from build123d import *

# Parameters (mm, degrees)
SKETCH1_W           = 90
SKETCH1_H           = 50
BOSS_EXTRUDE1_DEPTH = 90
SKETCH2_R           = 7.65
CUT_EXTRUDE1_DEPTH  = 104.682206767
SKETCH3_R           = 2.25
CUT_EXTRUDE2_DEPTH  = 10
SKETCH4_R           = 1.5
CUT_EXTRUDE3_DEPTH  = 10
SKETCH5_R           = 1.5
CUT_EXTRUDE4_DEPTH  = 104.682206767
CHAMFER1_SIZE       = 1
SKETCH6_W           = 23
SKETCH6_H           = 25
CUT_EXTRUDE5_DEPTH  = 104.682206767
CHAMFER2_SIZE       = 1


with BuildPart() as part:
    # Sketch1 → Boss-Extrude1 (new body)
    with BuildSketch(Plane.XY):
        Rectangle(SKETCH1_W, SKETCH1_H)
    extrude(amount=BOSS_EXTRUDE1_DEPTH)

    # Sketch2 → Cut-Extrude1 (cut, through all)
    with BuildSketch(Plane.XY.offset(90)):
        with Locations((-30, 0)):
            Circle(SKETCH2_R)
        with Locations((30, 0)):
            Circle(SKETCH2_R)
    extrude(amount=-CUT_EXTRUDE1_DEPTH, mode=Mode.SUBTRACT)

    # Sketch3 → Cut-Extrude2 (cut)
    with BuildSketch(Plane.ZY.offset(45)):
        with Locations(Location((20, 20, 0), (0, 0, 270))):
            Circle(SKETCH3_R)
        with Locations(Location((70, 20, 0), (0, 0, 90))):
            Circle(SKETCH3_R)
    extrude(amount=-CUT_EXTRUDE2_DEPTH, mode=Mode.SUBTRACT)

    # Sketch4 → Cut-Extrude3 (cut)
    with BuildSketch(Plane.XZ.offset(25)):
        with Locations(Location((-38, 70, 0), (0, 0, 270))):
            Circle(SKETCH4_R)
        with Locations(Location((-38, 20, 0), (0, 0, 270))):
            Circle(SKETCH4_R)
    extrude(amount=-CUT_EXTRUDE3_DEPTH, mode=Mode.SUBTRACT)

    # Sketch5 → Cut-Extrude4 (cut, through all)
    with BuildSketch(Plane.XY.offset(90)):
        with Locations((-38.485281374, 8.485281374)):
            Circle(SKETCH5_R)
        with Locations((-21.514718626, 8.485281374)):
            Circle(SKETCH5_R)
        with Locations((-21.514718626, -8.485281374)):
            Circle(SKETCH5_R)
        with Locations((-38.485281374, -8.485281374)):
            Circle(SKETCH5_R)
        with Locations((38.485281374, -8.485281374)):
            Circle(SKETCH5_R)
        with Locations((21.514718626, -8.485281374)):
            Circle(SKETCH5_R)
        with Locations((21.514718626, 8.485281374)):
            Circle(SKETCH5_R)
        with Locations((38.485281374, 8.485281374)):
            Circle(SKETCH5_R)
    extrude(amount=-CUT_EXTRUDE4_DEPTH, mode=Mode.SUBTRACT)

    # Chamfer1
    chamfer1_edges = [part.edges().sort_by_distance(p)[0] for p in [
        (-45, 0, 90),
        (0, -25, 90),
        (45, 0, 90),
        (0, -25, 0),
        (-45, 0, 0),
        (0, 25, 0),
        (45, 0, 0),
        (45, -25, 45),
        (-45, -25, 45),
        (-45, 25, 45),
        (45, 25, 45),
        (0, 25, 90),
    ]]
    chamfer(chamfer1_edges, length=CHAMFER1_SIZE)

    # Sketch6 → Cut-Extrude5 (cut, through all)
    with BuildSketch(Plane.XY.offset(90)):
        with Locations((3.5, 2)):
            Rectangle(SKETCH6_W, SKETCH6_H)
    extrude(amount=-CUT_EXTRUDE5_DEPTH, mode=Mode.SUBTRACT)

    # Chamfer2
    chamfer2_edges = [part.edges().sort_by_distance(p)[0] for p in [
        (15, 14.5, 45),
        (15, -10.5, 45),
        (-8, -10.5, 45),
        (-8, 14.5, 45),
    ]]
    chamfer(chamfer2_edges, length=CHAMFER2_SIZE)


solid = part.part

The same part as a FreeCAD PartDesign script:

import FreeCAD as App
import Part
import Sketcher
from FreeCAD import Vector
Q = App.Units.Quantity


def edges_at(feature, points):
    """Names of the edges that pass closest to the given points."""
    edges = feature.Shape.Edges
    near = lambda p: min(range(len(edges)), key=lambda i: edges[i].distToShape(Part.Vertex(*p))[0])
    return sorted({f"Edge{near(p) + 1}" for p in points})

doc = App.newDocument("Part")
body = doc.addObject("PartDesign::Body", "Body")

# Sketch on XY plane
sketch1 = body.newObject("Sketcher::SketchObject", "Sketch")
sketch1.AttachmentSupport = (doc.getObject("XY_Plane"), [""])
sketch1.MapMode = "FlatFace"
sketch1.addGeometry(Part.LineSegment(Vector(-45, 25, 0), Vector(-45, -25, 0)), False)
sketch1.addGeometry(Part.LineSegment(Vector(-45, -25, 0), Vector(45, -25, 0)), False)
sketch1.addGeometry(Part.LineSegment(Vector(45, -25, 0), Vector(45, 25, 0)), False)
sketch1.addGeometry(Part.LineSegment(Vector(45, 25, 0), Vector(-45, 25, 0)), False)
sketch1.addConstraint(Sketcher.Constraint("Coincident", 0, 2, 1, 1))
sketch1.addConstraint(Sketcher.Constraint("Coincident", 1, 2, 2, 1))
sketch1.addConstraint(Sketcher.Constraint("Coincident", 2, 2, 3, 1))
sketch1.addConstraint(Sketcher.Constraint("Coincident", 3, 2, 0, 1))
sketch1.addConstraint(Sketcher.Constraint("Vertical", 0))
sketch1.addConstraint(Sketcher.Constraint("Horizontal", 1))
sketch1.addConstraint(Sketcher.Constraint("Vertical", 2))
sketch1.addConstraint(Sketcher.Constraint("Horizontal", 3))
sketch1.addConstraint(Sketcher.Constraint("Symmetric", 0, 2, 2, 2, -1, 1))
sketch1.addConstraint(Sketcher.Constraint("DistanceX", 1, 1, 1, 2, Q("90 mm")))
sketch1.addConstraint(Sketcher.Constraint("DistanceY", 0, 2, 0, 1, Q("50 mm")))
pad1 = body.newObject("PartDesign::Pad", "Pad")
pad1.Profile = sketch1
pad1.Length = 90

# Sketch on XY plane
sketch2 = body.newObject("Sketcher::SketchObject", "Sketch001")
sketch2.AttachmentSupport = (doc.getObject("XY_Plane"), [""])
sketch2.MapMode = "FlatFace"
sketch2.AttachmentOffset = App.Placement(Vector(0, 0, 90), App.Rotation())
sketch2.addGeometry(Part.Circle(Vector(-30, 0, 0), Vector(0, 0, 1), 7.65), False)
sketch2.addGeometry(Part.Circle(Vector(30, 0, 0), Vector(0, 0, 1), 7.65), False)
sketch2.addConstraint(Sketcher.Constraint("Equal", 0, 1))
sketch2.addConstraint(Sketcher.Constraint("Symmetric", 0, 3, 1, 3, -1, 1))
sketch2.addConstraint(Sketcher.Constraint("PointOnObject", 0, 3, -1))
sketch2.addConstraint(Sketcher.Constraint("Diameter", 0, Q("15.3 mm")))
sketch2.addConstraint(Sketcher.Constraint("DistanceX", 0, 3, -1, 1, Q("30 mm")))
pocket1 = body.newObject("PartDesign::Pocket", "Pocket")
pocket1.Profile = sketch2
pocket1.Type = "ThroughAll"

# Sketch on YZ plane
sketch3 = body.newObject("Sketcher::SketchObject", "Sketch002")
sketch3.AttachmentSupport = (doc.getObject("YZ_Plane"), [""])
sketch3.MapMode = "FlatFace"
sketch3.AttachmentOffset = App.Placement(Vector(0, 0, -45), App.Rotation())
sketch3.addGeometry(Part.Circle(Vector(20, 20, 0), Vector(0, 0, 1), 2.25), False)
sketch3.addGeometry(Part.Circle(Vector(20, 70, 0), Vector(0, 0, 1), 2.25), False)
sketch3.addConstraint(Sketcher.Constraint("Equal", 0, 1))
sketch3.addConstraint(Sketcher.Constraint("Vertical", 0, 3, 1, 3))
sketch3.addConstraint(Sketcher.Constraint("Diameter", 0, Q("4.5 mm")))
sketch3.addConstraint(Sketcher.Constraint("DistanceX", -1, 1, 0, 3, Q("20 mm")))
sketch3.addConstraint(Sketcher.Constraint("DistanceY", -1, 1, 0, 3, Q("20 mm")))
sketch3.addConstraint(Sketcher.Constraint("DistanceY", -1, 1, 1, 3, Q("70 mm")))
pocket2 = body.newObject("PartDesign::Pocket", "Pocket001")
pocket2.Profile = sketch3
pocket2.Length = 10
pocket2.Reversed = True

# Sketch on XZ plane
sketch4 = body.newObject("Sketcher::SketchObject", "Sketch003")
sketch4.AttachmentSupport = (doc.getObject("XZ_Plane"), [""])
sketch4.MapMode = "FlatFace"
sketch4.AttachmentOffset = App.Placement(Vector(0, 0, 25), App.Rotation())
sketch4.addGeometry(Part.Circle(Vector(-38, 70, 0), Vector(0, 0, 1), 1.5), False)
sketch4.addGeometry(Part.Circle(Vector(-38, 20, 0), Vector(0, 0, 1), 1.5), False)
sketch4.addConstraint(Sketcher.Constraint("Equal", 0, 1))
sketch4.addConstraint(Sketcher.Constraint("Vertical", 0, 3, 1, 3))
sketch4.addConstraint(Sketcher.Constraint("Diameter", 0, Q("3 mm")))
sketch4.addConstraint(Sketcher.Constraint("DistanceX", 0, 3, -1, 1, Q("38 mm")))
sketch4.addConstraint(Sketcher.Constraint("DistanceY", -1, 1, 0, 3, Q("70 mm")))
sketch4.addConstraint(Sketcher.Constraint("DistanceY", -1, 1, 1, 3, Q("20 mm")))
pocket3 = body.newObject("PartDesign::Pocket", "Pocket002")
pocket3.Profile = sketch4
pocket3.Length = 10

# Sketch on XY plane
sketch5 = body.newObject("Sketcher::SketchObject", "Sketch004")
sketch5.AttachmentSupport = (doc.getObject("XY_Plane"), [""])
sketch5.MapMode = "FlatFace"
sketch5.AttachmentOffset = App.Placement(Vector(0, 0, 90), App.Rotation())
sketch5.addGeometry(Part.Circle(Vector(-38.485281, 8.485281, 0), Vector(0, 0, 1), 1.5), False)
sketch5.addGeometry(Part.Circle(Vector(-21.514719, 8.485281, 0), Vector(0, 0, 1), 1.5), False)
sketch5.addGeometry(Part.Circle(Vector(-21.514719, -8.485281, 0), Vector(0, 0, 1), 1.5), False)
sketch5.addGeometry(Part.Circle(Vector(-38.485281, -8.485281, 0), Vector(0, 0, 1), 1.5), False)
sketch5.addGeometry(Part.Circle(Vector(38.485281, -8.485281, 0), Vector(0, 0, 1), 1.5), False)
sketch5.addGeometry(Part.Circle(Vector(21.514719, -8.485281, 0), Vector(0, 0, 1), 1.5), False)
sketch5.addGeometry(Part.Circle(Vector(21.514719, 8.485281, 0), Vector(0, 0, 1), 1.5), False)
sketch5.addGeometry(Part.Circle(Vector(38.485281, 8.485281, 0), Vector(0, 0, 1), 1.5), False)
sketch5.addConstraint(Sketcher.Constraint("Equal", 0, 1))
sketch5.addConstraint(Sketcher.Constraint("Equal", 1, 2))
sketch5.addConstraint(Sketcher.Constraint("Equal", 2, 3))
sketch5.addConstraint(Sketcher.Constraint("Equal", 3, 4))
sketch5.addConstraint(Sketcher.Constraint("Equal", 4, 5))
sketch5.addConstraint(Sketcher.Constraint("Equal", 5, 6))
sketch5.addConstraint(Sketcher.Constraint("Equal", 6, 7))
sketch5.addConstraint(Sketcher.Constraint("Symmetric", 0, 3, 4, 3, -1, 1))
sketch5.addConstraint(Sketcher.Constraint("Symmetric", 1, 3, 5, 3, -1, 1))
sketch5.addConstraint(Sketcher.Constraint("Symmetric", 2, 3, 6, 3, -1, 1))
sketch5.addConstraint(Sketcher.Constraint("Symmetric", 3, 3, 7, 3, -1, 1))
sketch5.addConstraint(Sketcher.Constraint("Symmetric", 3, 3, 4, 3, -2))
sketch5.addConstraint(Sketcher.Constraint("Symmetric", 2, 3, 5, 3, -2))
sketch5.addConstraint(Sketcher.Constraint("Horizontal", 0, 3, 1, 3))
sketch5.addConstraint(Sketcher.Constraint("Diameter", 0, Q("3 mm")))
sketch5.addConstraint(Sketcher.Constraint("DistanceX", 2, 3, 4, 3, Q("60 mm")))
sketch5.addConstraint(Sketcher.Constraint("DistanceX", 0, 3, -1, 1, Q("38.485281 mm")))
sketch5.addConstraint(Sketcher.Constraint("DistanceY", -1, 1, 0, 3, Q("8.485281 mm")))
pocket4 = body.newObject("PartDesign::Pocket", "Pocket003")
pocket4.Profile = sketch5
pocket4.Type = "ThroughAll"
doc.recompute()

chamfer = body.newObject("PartDesign::Chamfer", "Chamfer")
chamfer.Base = (pocket4, edges_at(pocket4, [
    (-45, 0, 90),
    (0, -25, 90),
    (45, 0, 90),
    (0, -25, 0),
    (-45, 0, 0),
    (0, 25, 0),
    (45, 0, 0),
    (45, -25, 45),
    (-45, -25, 45),
    (-45, 25, 45),
    (45, 25, 45),
    (0, 25, 90),
]))
chamfer.Size = 1

# Sketch on XY plane
sketch6 = body.newObject("Sketcher::SketchObject", "Sketch005")
sketch6.AttachmentSupport = (doc.getObject("XY_Plane"), [""])
sketch6.MapMode = "FlatFace"
sketch6.AttachmentOffset = App.Placement(Vector(0, 0, 90), App.Rotation())
sketch6.addGeometry(Part.LineSegment(Vector(-8, 14.5, 0), Vector(-8, -10.5, 0)), False)
sketch6.addGeometry(Part.LineSegment(Vector(-8, -10.5, 0), Vector(15, -10.5, 0)), False)
sketch6.addGeometry(Part.LineSegment(Vector(15, -10.5, 0), Vector(15, 14.5, 0)), False)
sketch6.addGeometry(Part.LineSegment(Vector(15, 14.5, 0), Vector(-8, 14.5, 0)), False)
sketch6.addConstraint(Sketcher.Constraint("Coincident", 0, 2, 1, 1))
sketch6.addConstraint(Sketcher.Constraint("Coincident", 1, 2, 2, 1))
sketch6.addConstraint(Sketcher.Constraint("Coincident", 2, 2, 3, 1))
sketch6.addConstraint(Sketcher.Constraint("Coincident", 3, 2, 0, 1))
sketch6.addConstraint(Sketcher.Constraint("Vertical", 0))
sketch6.addConstraint(Sketcher.Constraint("Horizontal", 1))
sketch6.addConstraint(Sketcher.Constraint("Vertical", 2))
sketch6.addConstraint(Sketcher.Constraint("Horizontal", 3))
sketch6.addConstraint(Sketcher.Constraint("DistanceX", 1, 1, 1, 2, Q("23 mm")))
sketch6.addConstraint(Sketcher.Constraint("DistanceY", 0, 2, 0, 1, Q("25 mm")))
sketch6.addConstraint(Sketcher.Constraint("DistanceX", 0, 2, -1, 1, Q("8 mm")))
sketch6.addConstraint(Sketcher.Constraint("DistanceY", 0, 2, -1, 1, Q("10.5 mm")))
pocket5 = body.newObject("PartDesign::Pocket", "Pocket004")
pocket5.Profile = sketch6
pocket5.Type = "ThroughAll"
doc.recompute()

chamfer2 = body.newObject("PartDesign::Chamfer", "Chamfer001")
chamfer2.Base = (pocket5, edges_at(pocket5, [
    (15, 14.5, 45),
    (15, -10.5, 45),
    (-8, -10.5, 45),
    (-8, 14.5, 45),
]))
chamfer2.Size = 1

doc.recompute()
